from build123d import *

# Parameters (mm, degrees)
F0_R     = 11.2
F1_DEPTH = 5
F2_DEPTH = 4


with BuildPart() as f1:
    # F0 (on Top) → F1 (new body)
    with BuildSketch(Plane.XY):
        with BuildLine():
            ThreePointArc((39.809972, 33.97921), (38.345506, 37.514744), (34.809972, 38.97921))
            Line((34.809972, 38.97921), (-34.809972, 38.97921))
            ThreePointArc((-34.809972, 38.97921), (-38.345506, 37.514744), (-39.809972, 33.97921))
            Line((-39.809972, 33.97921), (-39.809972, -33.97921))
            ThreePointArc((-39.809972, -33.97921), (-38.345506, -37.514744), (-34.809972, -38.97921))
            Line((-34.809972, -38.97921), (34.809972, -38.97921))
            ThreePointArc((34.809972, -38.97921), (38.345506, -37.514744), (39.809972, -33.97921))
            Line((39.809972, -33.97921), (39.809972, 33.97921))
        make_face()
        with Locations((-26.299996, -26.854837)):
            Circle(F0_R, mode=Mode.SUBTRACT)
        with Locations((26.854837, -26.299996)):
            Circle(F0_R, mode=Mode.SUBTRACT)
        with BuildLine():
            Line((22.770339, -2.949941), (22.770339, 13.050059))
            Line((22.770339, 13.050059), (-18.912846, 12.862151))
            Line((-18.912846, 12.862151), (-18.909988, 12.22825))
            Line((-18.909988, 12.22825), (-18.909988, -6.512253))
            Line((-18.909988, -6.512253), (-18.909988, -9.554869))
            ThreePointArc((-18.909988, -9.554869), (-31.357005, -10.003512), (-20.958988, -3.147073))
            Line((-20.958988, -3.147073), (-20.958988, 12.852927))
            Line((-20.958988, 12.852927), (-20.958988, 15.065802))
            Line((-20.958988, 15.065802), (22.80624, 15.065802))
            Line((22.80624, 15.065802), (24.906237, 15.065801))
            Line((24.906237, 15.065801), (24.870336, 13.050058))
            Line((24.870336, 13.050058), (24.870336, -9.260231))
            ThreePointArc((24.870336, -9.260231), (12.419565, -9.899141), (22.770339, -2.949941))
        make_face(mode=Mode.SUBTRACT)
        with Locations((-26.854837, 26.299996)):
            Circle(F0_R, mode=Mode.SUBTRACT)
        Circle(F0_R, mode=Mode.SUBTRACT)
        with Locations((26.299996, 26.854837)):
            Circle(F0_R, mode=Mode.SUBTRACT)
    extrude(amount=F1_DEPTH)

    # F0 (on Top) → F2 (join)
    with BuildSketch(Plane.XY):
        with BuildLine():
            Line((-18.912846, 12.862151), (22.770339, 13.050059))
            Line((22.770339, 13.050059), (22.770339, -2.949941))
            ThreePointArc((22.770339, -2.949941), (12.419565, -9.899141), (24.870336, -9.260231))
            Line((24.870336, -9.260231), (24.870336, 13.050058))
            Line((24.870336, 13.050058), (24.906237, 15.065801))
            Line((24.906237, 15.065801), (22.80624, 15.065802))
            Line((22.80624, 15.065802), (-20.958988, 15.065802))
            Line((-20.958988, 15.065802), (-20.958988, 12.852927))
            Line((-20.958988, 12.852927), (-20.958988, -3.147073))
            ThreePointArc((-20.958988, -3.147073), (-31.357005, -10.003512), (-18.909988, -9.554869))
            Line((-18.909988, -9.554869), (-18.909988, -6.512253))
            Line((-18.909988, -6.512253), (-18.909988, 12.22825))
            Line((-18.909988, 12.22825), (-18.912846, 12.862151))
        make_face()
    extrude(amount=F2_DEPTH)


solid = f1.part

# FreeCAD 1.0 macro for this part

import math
import FreeCAD as App
import Part
import Sketcher

doc = App.newDocument("Part")
body = doc.addObject("PartDesign::Body", "Body")

# Sketch on XY plane
sketch1 = body.newObject("Sketcher::SketchObject", "Sketch")
sketch1.AttachmentSupport = (doc.getObject("XY_Plane"), [""])
sketch1.MapMode = "FlatFace"
sketch1.addGeometry([
    Part.ArcOfCircle(Part.Circle(App.Vector(34.809972, 33.97921, 0), App.Vector(0, 0, 1), 5), math.radians(-0.000004), math.radians(90.000004)),  # 0
    Part.LineSegment(App.Vector(34.809972, 38.97921, 0), App.Vector(-34.809972, 38.97921, 0)),  # 1
    Part.ArcOfCircle(Part.Circle(App.Vector(-34.809972, 33.97921, 0), App.Vector(0, 0, 1), 5), math.radians(89.999996), math.radians(180.000004)),  # 2
    Part.LineSegment(App.Vector(-39.809972, 33.97921, 0), App.Vector(-39.809972, -33.97921, 0)),  # 3
    Part.ArcOfCircle(Part.Circle(App.Vector(-34.809972, -33.97921, 0), App.Vector(0, 0, 1), 5), math.radians(179.999996), math.radians(270.000004)),  # 4
    Part.LineSegment(App.Vector(-34.809972, -38.97921, 0), App.Vector(34.809972, -38.97921, 0)),  # 5
    Part.ArcOfCircle(Part.Circle(App.Vector(34.809972, -33.97921, 0), App.Vector(0, 0, 1), 5), math.radians(-90.000004), math.radians(0.000004)),  # 6
    Part.LineSegment(App.Vector(39.809972, -33.97921, 0), App.Vector(39.809972, 33.97921, 0)),  # 7
    Part.Circle(App.Vector(-26.299996, -26.854837, 0), App.Vector(0, 0, 1), 11.2),  # 8
    Part.Circle(App.Vector(26.854837, -26.299996, 0), App.Vector(0, 0, 1), 11.2),  # 9
    Part.ArcOfCircle(Part.Circle(App.Vector(18.556542, -7.856821, 0), App.Vector(0, 0, 1), 6.467887), math.radians(49.34557), math.radians(347.468211)),  # 10
    Part.LineSegment(App.Vector(22.770339, -2.949941, 0), App.Vector(22.770339, 13.050059, 0)),  # 11
    Part.LineSegment(App.Vector(22.770339, 13.050059, 0), App.Vector(-18.912846, 12.862151, 0)),  # 12
    Part.LineSegment(App.Vector(-18.912846, 12.862151, 0), App.Vector(-18.909988, 12.22825, 0)),  # 13
    Part.LineSegment(App.Vector(-18.909988, 12.22825, 0), App.Vector(-18.909988, -9.554869, 0)),  # 14
    Part.ArcOfCircle(Part.Circle(App.Vector(-25.196416, -8.033561, 0), App.Vector(0, 0, 1), 6.467887), math.radians(49.069066), math.radians(346.396028)),  # 15
    Part.LineSegment(App.Vector(-20.958988, -3.147073, 0), App.Vector(-20.958988, 15.065802, 0)),  # 16
    Part.LineSegment(App.Vector(-20.958988, 15.065802, 0), App.Vector(22.80624, 15.065802, 0)),  # 17
    Part.LineSegment(App.Vector(22.80624, 15.065802, 0), App.Vector(24.906237, 15.065801, 0)),  # 18
    Part.LineSegment(App.Vector(24.906237, 15.065801, 0), App.Vector(24.870336, 13.050058, 0)),  # 19
    Part.LineSegment(App.Vector(24.870336, 13.050058, 0), App.Vector(24.870336, -9.260231, 0)),  # 20
    Part.Circle(App.Vector(-26.854837, 26.299996, 0), App.Vector(0, 0, 1), 11.2),  # 21
    Part.Circle(App.Vector(0, 0, 0), App.Vector(0, 0, 1), 11.2),  # 22
    Part.Circle(App.Vector(26.299996, 26.854837, 0), App.Vector(0, 0, 1), 11.2),  # 23
], False)
sketch1.addConstraint([
    Sketcher.Constraint("Coincident", 0, 2, 1, 1),
    Sketcher.Constraint("Coincident", 1, 2, 2, 1),
    Sketcher.Constraint("Coincident", 2, 2, 3, 1),
    Sketcher.Constraint("Coincident", 3, 2, 4, 1),
    Sketcher.Constraint("Coincident", 4, 2, 5, 1),
    Sketcher.Constraint("Coincident", 5, 2, 6, 1),
    Sketcher.Constraint("Coincident", 6, 2, 7, 1),
    Sketcher.Constraint("Coincident", 7, 2, 0, 1),
    Sketcher.Constraint("Coincident", 10, 1, 11, 1),
    Sketcher.Constraint("Coincident", 11, 2, 12, 1),
    Sketcher.Constraint("Coincident", 12, 2, 13, 1),
    Sketcher.Constraint("Coincident", 13, 2, 14, 1),
    Sketcher.Constraint("Coincident", 14, 2, 15, 2),
    Sketcher.Constraint("Coincident", 15, 1, 16, 1),
    Sketcher.Constraint("Coincident", 16, 2, 17, 1),
    Sketcher.Constraint("Coincident", 17, 2, 18, 1),
    Sketcher.Constraint("Coincident", 18, 2, 19, 1),
    Sketcher.Constraint("Coincident", 19, 2, 20, 1),
    Sketcher.Constraint("Coincident", 20, 2, 10, 2),
    Sketcher.Constraint("Horizontal", 1),
    Sketcher.Constraint("Vertical", 3),
    Sketcher.Constraint("Horizontal", 5),
    Sketcher.Constraint("Vertical", 7),
    Sketcher.Constraint("Vertical", 11),
    Sketcher.Constraint("Vertical", 14),
    Sketcher.Constraint("Vertical", 16),
    Sketcher.Constraint("Horizontal", 17),
    Sketcher.Constraint("Horizontal", 18),
    Sketcher.Constraint("Vertical", 20),
    Sketcher.Constraint("Coincident", 22, 3, -1, 1),
    Sketcher.Constraint("Radius", 0, 5.0),
    Sketcher.Constraint("Radius", 2, 5.0),
    Sketcher.Constraint("Radius", 4, 5.0),
    Sketcher.Constraint("Radius", 6, 5.0),
    Sketcher.Constraint("Diameter", 8, 22.4),
    Sketcher.Constraint("Diameter", 9, 22.4),
    Sketcher.Constraint("Diameter", 21, 22.4),
    Sketcher.Constraint("Diameter", 22, 22.4),
    Sketcher.Constraint("Diameter", 23, 22.4),
    Sketcher.Constraint("DistanceY", 11, 1, 11, 2, 16.0),
    Sketcher.Constraint("DistanceX", 2, 2, 1, 2, 5.0),
    Sketcher.Constraint("DistanceY", 2, 2, 1, 2, 5.0),
    Sketcher.Constraint("DistanceX", 3, 2, 4, 2, 5.0),
    Sketcher.Constraint("DistanceY", 4, 2, 3, 2, 5.0),
    Sketcher.Constraint("DistanceX", 5, 2, 6, 2, 5.0),
    Sketcher.Constraint("DistanceY", 5, 2, 6, 2, 5.0),
    Sketcher.Constraint("DistanceX", 0, 2, 7, 2, 5.0),
    Sketcher.Constraint("DistanceY", 7, 2, 0, 2, 5.0),
    Sketcher.Constraint("DistanceY", 10, 1, 19, 2, 15.999999),
    Sketcher.Constraint("Radius", 10, 6.467887),
    Sketcher.Constraint("Radius", 15, 6.467887),
    Sketcher.Constraint("DistanceX", 15, 1, 14, 2, 2.049),
    Sketcher.Constraint("DistanceY", 3, 2, 3, 1, 67.95842),
    Sketcher.Constraint("DistanceY", 14, 2, 14, 1, 21.783119),
    Sketcher.Constraint("DistanceY", 20, 2, 20, 1, 22.310289),
    Sketcher.Constraint("DistanceY", -1, 1, 18, 2, 15.065801),
    Sketcher.Constraint("DistanceX", 10, 1, 9, 3, 4.084498),
    Sketcher.Constraint("DistanceY", 13, 2, 12, 2, 0.633901),
    Sketcher.Constraint("DistanceX", 11, 2, 17, 2, 0.035901),
    Sketcher.Constraint("DistanceX", 10, 3, 17, 2, 4.249698),
    Sketcher.Constraint("DistanceX", 11, 2, 18, 2, 2.135898),
    Sketcher.Constraint("Distance", 12, 41.683609),
    Sketcher.Constraint("DistanceX", 1, 2, 1, 1, 69.619944),
    Sketcher.Constraint("DistanceX", 17, 1, 17, 2, 43.765228),
    Sketcher.Constraint("DistanceY", 16, 1, 16, 2, 18.212875),
    Sketcher.Constraint("DistanceY", -1, 1, 0, 3, 33.97921),
    Sketcher.Constraint("DistanceX", -1, 1, 10, 3, 18.556542),
    Sketcher.Constraint("DistanceY", 10, 3, -1, 1, 7.856821),
    Sketcher.Constraint("DistanceY", 15, 3, -1, 1, 8.033561),
    Sketcher.Constraint("DistanceX", 2, 2, -1, 1, 39.809972),
    Sketcher.Constraint("DistanceX", 8, 3, 6, 3, 61.109968),
    Sketcher.Constraint("DistanceY", 8, 3, 9, 3, 0.554841),
    Sketcher.Constraint("DistanceX", 21, 3, 15, 3, 1.658421),
    Sketcher.Constraint("DistanceX", 23, 3, 9, 3, 0.554841),
    Sketcher.Constraint("DistanceY", 21, 3, 23, 3, 0.554841),
    Sketcher.Constraint("DistanceY", 10, 1, 23, 3, 29.804778),
    Sketcher.Constraint("DistanceY", 8, 3, 14, 2, 17.299968),
])
pad1 = body.newObject("PartDesign::Pad", "Pad")
pad1.Profile = sketch1
pad1.Length = 5

# Sketch on XY plane
sketch2 = body.newObject("Sketcher::SketchObject", "Sketch001")
sketch2.AttachmentSupport = (doc.getObject("XY_Plane"), [""])
sketch2.MapMode = "FlatFace"
sketch2.addGeometry([
    Part.LineSegment(App.Vector(-18.912846, 12.862151, 0), App.Vector(22.770339, 13.050059, 0)),  # 0
    Part.LineSegment(App.Vector(22.770339, 13.050059, 0), App.Vector(22.770339, -2.949941, 0)),  # 1
    Part.ArcOfCircle(Part.Circle(App.Vector(18.556542, -7.856821, 0), App.Vector(0, 0, 1), 6.467887), math.radians(49.34557), math.radians(347.468211)),  # 2
    Part.LineSegment(App.Vector(24.870336, -9.260231, 0), App.Vector(24.870336, 13.050058, 0)),  # 3
    Part.LineSegment(App.Vector(24.870336, 13.050058, 0), App.Vector(24.906237, 15.065801, 0)),  # 4
    Part.LineSegment(App.Vector(24.906237, 15.065801, 0), App.Vector(22.80624, 15.065802, 0)),  # 5
    Part.LineSegment(App.Vector(22.80624, 15.065802, 0), App.Vector(-20.958988, 15.065802, 0)),  # 6
    Part.LineSegment(App.Vector(-20.958988, 15.065802, 0), App.Vector(-20.958988, -3.147073, 0)),  # 7
    Part.ArcOfCircle(Part.Circle(App.Vector(-25.196416, -8.033561, 0), App.Vector(0, 0, 1), 6.467887), math.radians(49.069066), math.radians(346.396028)),  # 8
    Part.LineSegment(App.Vector(-18.909988, -9.554869, 0), App.Vector(-18.909988, 12.22825, 0)),  # 9
    Part.LineSegment(App.Vector(-18.909988, 12.22825, 0), App.Vector(-18.912846, 12.862151, 0)),  # 10
], False)
sketch2.addConstraint([
    Sketcher.Constraint("Coincident", 0, 2, 1, 1),
    Sketcher.Constraint("Coincident", 1, 2, 2, 1),
    Sketcher.Constraint("Coincident", 2, 2, 3, 1),
    Sketcher.Constraint("Coincident", 3, 2, 4, 1),
    Sketcher.Constraint("Coincident", 4, 2, 5, 1),
    Sketcher.Constraint("Coincident", 5, 2, 6, 1),
    Sketcher.Constraint("Coincident", 6, 2, 7, 1),
    Sketcher.Constraint("Coincident", 7, 2, 8, 1),
    Sketcher.Constraint("Coincident", 8, 2, 9, 1),
    Sketcher.Constraint("Coincident", 9, 2, 10, 1),
    Sketcher.Constraint("Coincident", 10, 2, 0, 1),
    Sketcher.Constraint("Vertical", 1),
    Sketcher.Constraint("Vertical", 3),
    Sketcher.Constraint("Horizontal", 5),
    Sketcher.Constraint("Horizontal", 6),
    Sketcher.Constraint("Vertical", 7),
    Sketcher.Constraint("Vertical", 9),
    Sketcher.Constraint("DistanceY", 1, 2, 1, 1, 16.0),
    Sketcher.Constraint("DistanceY", 1, 2, 3, 2, 15.999999),
    Sketcher.Constraint("Radius", 2, 6.467887),
    Sketcher.Constraint("Radius", 8, 6.467887),
    Sketcher.Constraint("DistanceX", 7, 2, 8, 2, 2.049),
    Sketcher.Constraint("DistanceY", 3, 1, 3, 2, 22.310289),
    Sketcher.Constraint("DistanceY", 9, 1, 9, 2, 21.783119),
    Sketcher.Constraint("DistanceY", -1, 1, 4, 2, 15.065801),
    Sketcher.Constraint("DistanceX", 3, 2, 4, 2, 0.035901),
    Sketcher.Constraint("DistanceX", 0, 2, 4, 2, 2.135898),
    Sketcher.Constraint("DistanceX", 0, 2, 5, 2, 0.035901),
    Sketcher.Constraint("DistanceY", 9, 2, 10, 2, 0.633901),
    Sketcher.Constraint("Distance", 0, 41.683609),
    Sketcher.Constraint("DistanceX", 6, 2, 6, 1, 43.765228),
    Sketcher.Constraint("DistanceY", 7, 2, 7, 1, 18.212875),
    Sketcher.Constraint("DistanceX", -1, 1, 2, 3, 18.556542),
    Sketcher.Constraint("DistanceY", 2, 3, -1, 1, 7.856821),
    Sketcher.Constraint("DistanceY", 8, 3, -1, 1, 8.033561),
])
pad2 = body.newObject("PartDesign::Pad", "Pad001")
pad2.Profile = sketch2
pad2.Length = 4

doc.recompute()
